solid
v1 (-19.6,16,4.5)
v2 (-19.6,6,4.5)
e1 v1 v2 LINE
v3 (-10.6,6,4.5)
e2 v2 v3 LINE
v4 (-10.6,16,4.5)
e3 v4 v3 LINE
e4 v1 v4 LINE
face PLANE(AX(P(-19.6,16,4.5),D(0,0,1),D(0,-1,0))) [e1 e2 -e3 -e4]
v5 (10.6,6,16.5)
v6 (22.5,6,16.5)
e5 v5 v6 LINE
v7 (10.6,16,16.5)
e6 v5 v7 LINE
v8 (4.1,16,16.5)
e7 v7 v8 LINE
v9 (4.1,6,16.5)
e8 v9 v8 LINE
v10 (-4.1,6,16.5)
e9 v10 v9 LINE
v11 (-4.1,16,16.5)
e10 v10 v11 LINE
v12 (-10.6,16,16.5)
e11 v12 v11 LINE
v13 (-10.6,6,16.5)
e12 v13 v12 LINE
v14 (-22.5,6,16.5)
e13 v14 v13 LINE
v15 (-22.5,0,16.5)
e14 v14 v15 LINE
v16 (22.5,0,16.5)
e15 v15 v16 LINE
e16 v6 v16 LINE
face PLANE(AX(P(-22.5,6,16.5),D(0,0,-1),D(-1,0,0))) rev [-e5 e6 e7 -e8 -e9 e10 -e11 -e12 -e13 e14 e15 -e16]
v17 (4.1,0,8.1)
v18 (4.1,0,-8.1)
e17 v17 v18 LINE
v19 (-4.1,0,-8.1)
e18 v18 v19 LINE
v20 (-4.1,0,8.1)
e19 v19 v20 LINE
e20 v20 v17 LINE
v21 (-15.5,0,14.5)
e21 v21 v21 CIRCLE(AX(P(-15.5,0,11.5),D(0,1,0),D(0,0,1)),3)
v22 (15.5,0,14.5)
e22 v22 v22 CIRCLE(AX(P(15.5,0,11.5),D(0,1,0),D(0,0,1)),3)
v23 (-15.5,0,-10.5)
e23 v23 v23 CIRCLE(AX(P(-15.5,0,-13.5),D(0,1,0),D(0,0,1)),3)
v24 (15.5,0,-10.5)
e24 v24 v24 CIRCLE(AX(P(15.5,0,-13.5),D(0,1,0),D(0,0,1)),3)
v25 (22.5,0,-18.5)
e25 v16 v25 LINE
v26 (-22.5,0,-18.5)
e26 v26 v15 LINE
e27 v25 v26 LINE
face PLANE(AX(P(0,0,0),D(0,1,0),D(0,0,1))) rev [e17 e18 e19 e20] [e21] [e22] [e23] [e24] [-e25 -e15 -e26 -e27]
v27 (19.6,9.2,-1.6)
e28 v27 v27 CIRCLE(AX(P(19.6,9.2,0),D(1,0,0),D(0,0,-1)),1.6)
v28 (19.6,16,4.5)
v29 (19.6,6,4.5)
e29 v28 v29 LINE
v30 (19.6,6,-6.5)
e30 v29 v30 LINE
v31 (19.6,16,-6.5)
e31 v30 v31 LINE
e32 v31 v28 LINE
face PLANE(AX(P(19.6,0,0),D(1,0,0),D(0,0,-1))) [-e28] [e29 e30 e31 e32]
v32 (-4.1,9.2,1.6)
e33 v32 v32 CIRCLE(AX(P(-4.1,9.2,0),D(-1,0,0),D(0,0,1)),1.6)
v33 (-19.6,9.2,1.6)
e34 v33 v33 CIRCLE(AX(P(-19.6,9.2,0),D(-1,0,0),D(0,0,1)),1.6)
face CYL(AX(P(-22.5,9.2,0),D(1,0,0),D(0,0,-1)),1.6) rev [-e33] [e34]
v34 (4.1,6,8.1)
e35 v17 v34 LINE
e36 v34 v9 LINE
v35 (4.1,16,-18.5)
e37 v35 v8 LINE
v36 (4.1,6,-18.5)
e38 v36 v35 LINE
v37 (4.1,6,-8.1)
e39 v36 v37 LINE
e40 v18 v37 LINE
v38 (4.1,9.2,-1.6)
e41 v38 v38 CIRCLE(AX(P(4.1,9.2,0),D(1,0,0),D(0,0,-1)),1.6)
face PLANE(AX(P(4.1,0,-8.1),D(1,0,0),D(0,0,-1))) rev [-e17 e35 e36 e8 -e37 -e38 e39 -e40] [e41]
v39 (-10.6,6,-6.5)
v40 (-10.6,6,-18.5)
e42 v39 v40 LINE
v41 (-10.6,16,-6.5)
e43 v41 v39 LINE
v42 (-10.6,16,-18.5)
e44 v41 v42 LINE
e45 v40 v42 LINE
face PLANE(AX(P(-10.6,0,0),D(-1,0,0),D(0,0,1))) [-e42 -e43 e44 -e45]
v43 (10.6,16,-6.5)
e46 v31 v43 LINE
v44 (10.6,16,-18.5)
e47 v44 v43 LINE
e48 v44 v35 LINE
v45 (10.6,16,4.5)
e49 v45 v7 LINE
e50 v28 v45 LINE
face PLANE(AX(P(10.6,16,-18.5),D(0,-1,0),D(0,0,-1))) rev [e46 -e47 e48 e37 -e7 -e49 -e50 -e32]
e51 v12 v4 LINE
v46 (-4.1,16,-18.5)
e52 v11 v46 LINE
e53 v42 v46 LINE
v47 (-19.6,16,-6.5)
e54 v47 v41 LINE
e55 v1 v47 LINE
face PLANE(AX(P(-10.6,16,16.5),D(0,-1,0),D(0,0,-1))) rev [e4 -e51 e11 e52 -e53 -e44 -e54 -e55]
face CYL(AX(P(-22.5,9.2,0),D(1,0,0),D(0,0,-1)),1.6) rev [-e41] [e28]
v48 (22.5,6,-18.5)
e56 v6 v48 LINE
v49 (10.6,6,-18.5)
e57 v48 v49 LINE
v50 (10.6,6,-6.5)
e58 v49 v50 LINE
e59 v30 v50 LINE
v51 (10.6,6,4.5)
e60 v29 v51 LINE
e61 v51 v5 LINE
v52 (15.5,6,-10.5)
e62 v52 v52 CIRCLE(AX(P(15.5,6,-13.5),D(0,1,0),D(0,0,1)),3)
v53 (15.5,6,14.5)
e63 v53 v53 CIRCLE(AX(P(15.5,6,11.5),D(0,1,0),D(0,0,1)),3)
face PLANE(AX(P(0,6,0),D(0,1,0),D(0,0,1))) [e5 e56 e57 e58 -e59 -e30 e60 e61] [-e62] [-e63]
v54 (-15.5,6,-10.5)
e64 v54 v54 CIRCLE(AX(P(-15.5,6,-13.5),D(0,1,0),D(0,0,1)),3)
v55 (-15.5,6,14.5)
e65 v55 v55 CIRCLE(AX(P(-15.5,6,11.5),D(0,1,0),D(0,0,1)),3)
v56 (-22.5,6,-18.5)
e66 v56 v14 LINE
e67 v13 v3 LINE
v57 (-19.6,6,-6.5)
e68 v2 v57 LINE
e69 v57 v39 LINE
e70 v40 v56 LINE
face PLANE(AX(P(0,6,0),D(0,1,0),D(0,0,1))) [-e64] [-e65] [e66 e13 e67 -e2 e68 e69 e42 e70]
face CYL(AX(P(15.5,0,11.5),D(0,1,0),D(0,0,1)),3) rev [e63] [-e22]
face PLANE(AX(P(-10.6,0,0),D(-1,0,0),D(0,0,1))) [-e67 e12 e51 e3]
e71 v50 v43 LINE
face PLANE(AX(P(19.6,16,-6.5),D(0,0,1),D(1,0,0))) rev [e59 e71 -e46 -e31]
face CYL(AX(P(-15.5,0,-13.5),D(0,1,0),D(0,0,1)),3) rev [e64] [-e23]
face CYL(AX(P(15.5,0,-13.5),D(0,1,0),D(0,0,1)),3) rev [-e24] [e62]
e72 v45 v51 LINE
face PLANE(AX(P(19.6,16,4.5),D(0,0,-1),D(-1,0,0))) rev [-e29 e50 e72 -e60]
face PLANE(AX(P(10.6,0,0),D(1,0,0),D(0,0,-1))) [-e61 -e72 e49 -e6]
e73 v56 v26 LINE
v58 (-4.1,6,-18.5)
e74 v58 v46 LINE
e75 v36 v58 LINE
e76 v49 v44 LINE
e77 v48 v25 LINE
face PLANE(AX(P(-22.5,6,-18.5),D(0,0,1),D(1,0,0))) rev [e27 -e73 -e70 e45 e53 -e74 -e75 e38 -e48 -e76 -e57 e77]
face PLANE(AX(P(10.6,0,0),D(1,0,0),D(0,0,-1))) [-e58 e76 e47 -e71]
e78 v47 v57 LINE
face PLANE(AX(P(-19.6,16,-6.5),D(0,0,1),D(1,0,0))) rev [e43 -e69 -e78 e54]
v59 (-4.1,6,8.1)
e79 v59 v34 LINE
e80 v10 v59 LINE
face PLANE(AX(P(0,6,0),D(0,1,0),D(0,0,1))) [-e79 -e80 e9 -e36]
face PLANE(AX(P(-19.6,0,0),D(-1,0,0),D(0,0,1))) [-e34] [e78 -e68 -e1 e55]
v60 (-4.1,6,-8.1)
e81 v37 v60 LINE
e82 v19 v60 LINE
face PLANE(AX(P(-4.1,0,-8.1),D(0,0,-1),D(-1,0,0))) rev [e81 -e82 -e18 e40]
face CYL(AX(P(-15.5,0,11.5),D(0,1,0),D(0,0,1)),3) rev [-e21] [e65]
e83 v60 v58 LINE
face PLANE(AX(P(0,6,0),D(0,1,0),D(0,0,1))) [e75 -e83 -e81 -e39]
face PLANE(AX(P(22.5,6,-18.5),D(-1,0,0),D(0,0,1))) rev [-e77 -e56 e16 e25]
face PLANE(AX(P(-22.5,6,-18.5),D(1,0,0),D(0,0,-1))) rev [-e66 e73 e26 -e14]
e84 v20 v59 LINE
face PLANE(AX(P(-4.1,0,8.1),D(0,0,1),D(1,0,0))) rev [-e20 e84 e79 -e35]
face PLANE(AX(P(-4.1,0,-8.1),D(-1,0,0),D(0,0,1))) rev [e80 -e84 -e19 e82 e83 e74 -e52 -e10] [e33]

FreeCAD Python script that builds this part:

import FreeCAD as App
import Part
import Sketcher

V = App.Vector


def add_polygon(sketch, points):
    """Adds a closed chain of lines whose ends are joined by coincident constraints."""
    first, n = sketch.GeometryCount, len(points)
    for a, b in zip(points, points[1:] + points[:1]):
        sketch.addGeometry(Part.LineSegment(App.Vector(*a, 0), App.Vector(*b, 0)), False)
    for i in range(n):
        sketch.addConstraint(Sketcher.Constraint("Coincident", first + i, 2, first + (i + 1) % n, 1))

doc = App.newDocument("Part")
body = doc.addObject("PartDesign::Body", "Body")

# Sketch on XZ plane
sketch1 = doc.addObject("Sketcher::SketchObject", "Sketch")
body.addObject(sketch1)
sketch1.AttachmentSupport = (doc.XZ_Plane, [""])
sketch1.MapMode = "FlatFace"
add_polygon(sketch1, [(-22, -18), (-22, 16), (22, 16), (22, -18)])  # lines 0-3
sketch1.addConstraint([
    Sketcher.Constraint("Vertical", 0),
    Sketcher.Constraint("Horizontal", 1),
    Sketcher.Constraint("Vertical", 2),
    Sketcher.Constraint("Horizontal", 3),
    Sketcher.Constraint("DistanceX", 1, 1, 1, 2, 45.0),
    Sketcher.Constraint("DistanceY", 0, 1, 0, 2, 35.0),
    Sketcher.Constraint("DistanceX", 0, 2, -1, 1, 22.5),
    Sketcher.Constraint("DistanceY", -1, 1, 0, 2, 16.5),
])
pad1 = doc.addObject("PartDesign::Pad", "Pad")
body.addObject(pad1)
pad1.Profile = sketch1
pad1.Length = 6
pad1.Reversed = True

# Sketch on XZ plane
sketch2 = doc.addObject("Sketcher::SketchObject", "Sketch001")
body.addObject(sketch2)
sketch2.AttachmentSupport = (doc.XZ_Plane, [""])
sketch2.MapMode = "FlatFace"
sketch2.AttachmentOffset = App.Placement(V(0, 0, -6), App.Rotation())
sketch2.addGeometry([
    Part.Circle(V(-15.5, -13.5, 0), V(0, 0, 1), 3),
    Part.Circle(V(-15.5, 11.5, 0), V(0, 0, 1), 3),
    Part.Circle(V(15.5, 11.5, 0), V(0, 0, 1), 3),
    Part.Circle(V(15.5, -13.5, 0), V(0, 0, 1), 3),
], False)
sketch2.addConstraint([
    Sketcher.Constraint("Equal", 0, 1),
    Sketcher.Constraint("Equal", 1, 2),
    Sketcher.Constraint("Equal", 2, 3),
    Sketcher.Constraint("Symmetric", 1, 3, 2, 3, -2),
    Sketcher.Constraint("Symmetric", 0, 3, 3, 3, -2),
    Sketcher.Constraint("Vertical", 0, 3, 1, 3),
    Sketcher.Constraint("Diameter", 0, 6.0),
    Sketcher.Constraint("DistanceY", 0, 3, 1, 3, 25.0),
    Sketcher.Constraint("DistanceX", 1, 3, 2, 3, 31.0),
    Sketcher.Constraint("DistanceY", 0, 3, -1, 1, 13.5),
])
pocket1 = doc.addObject("PartDesign::Pocket", "Pocket")
body.addObject(pocket1)
pocket1.Profile = sketch2
pocket1.Type = "ThroughAll"
pocket1.Reversed = True

# Sketch on XZ plane
sketch3 = doc.addObject("Sketcher::SketchObject", "Sketch002")
body.addObject(sketch3)
sketch3.AttachmentSupport = (doc.XZ_Plane, [""])
sketch3.MapMode = "FlatFace"
sketch3.AttachmentOffset = App.Placement(V(0, 0, -6), App.Rotation())
add_polygon(sketch3, [(-4, -8), (-4, 8), (4, 8), (4, -8)])  # lines 0-3
sketch3.addConstraint([
    Sketcher.Constraint("Vertical", 0),
    Sketcher.Constraint("Horizontal", 1),
    Sketcher.Constraint("Vertical", 2),
    Sketcher.Constraint("Horizontal", 3),
    Sketcher.Constraint("Symmetric", 0, 2, 2, 2, -1, 1),
    Sketcher.Constraint("DistanceX", 1, 1, 1, 2, 8.2),
    Sketcher.Constraint("DistanceY", 0, 1, 0, 2, 16.2),
])
pocket2 = doc.addObject("PartDesign::Pocket", "Pocket001")
body.addObject(pocket2)
pocket2.Profile = sketch3
pocket2.Type = "ThroughAll"
pocket2.Reversed = True

# Sketch on YZ plane
sketch4 = doc.addObject("Sketcher::SketchObject", "Sketch003")
body.addObject(sketch4)
sketch4.AttachmentSupport = (doc.YZ_Plane, [""])
sketch4.MapMode = "FlatFace"
sketch4.AttachmentOffset = App.Placement(V(0, 0, -4.1), App.Rotation())
add_polygon(sketch4, [(16, 16), (6, 16), (6, -18), (16, -18)])  # lines 0-3
sketch4.addConstraint([
    Sketcher.Constraint("Horizontal", 0),
    Sketcher.Constraint("Vertical", 1),
    Sketcher.Constraint("Horizontal", 2),
    Sketcher.Constraint("Vertical", 3),
    Sketcher.Constraint("DistanceX", 0, 2, 0, 1, 10.0),
    Sketcher.Constraint("DistanceY", 1, 2, 1, 1, 35.0),
    Sketcher.Constraint("DistanceX", -1, 1, 0, 2, 6.0),
    Sketcher.Constraint("DistanceY", -1, 1, 0, 2, 16.5),
])
pad2 = doc.addObject("PartDesign::Pad", "Pad001")
body.addObject(pad2)
pad2.Profile = sketch4
pad2.Length = 6.5
pad2.Reversed = True

# Sketch on YZ plane
sketch5 = doc.addObject("Sketcher::SketchObject", "Sketch004")
body.addObject(sketch5)
sketch5.AttachmentSupport = (doc.YZ_Plane, [""])
sketch5.MapMode = "FlatFace"
sketch5.AttachmentOffset = App.Placement(V(0, 0, 4.1), App.Rotation())
add_polygon(sketch5, [(16, -18), (6, -18), (6, 16), (16, 16)])  # lines 0-3
sketch5.addConstraint([
    Sketcher.Constraint("Horizontal", 0),
    Sketcher.Constraint("Vertical", 1),
    Sketcher.Constraint("Horizontal", 2),
    Sketcher.Constraint("Vertical", 3),
    Sketcher.Constraint("DistanceX", 0, 2, 0, 1, 10.0),
    Sketcher.Constraint("DistanceY", 1, 1, 1, 2, 35.0),
    Sketcher.Constraint("DistanceX", -1, 1, 0, 2, 6.0),
    Sketcher.Constraint("DistanceY", 0, 2, -1, 1, 18.5),
])
pad3 = doc.addObject("PartDesign::Pad", "Pad002")
body.addObject(pad3)
pad3.Profile = sketch5
pad3.Length = 6.5

# Sketch on YZ plane
sketch6 = doc.addObject("Sketcher::SketchObject", "Sketch005")
body.addObject(sketch6)
sketch6.AttachmentSupport = (doc.YZ_Plane, [""])
sketch6.MapMode = "FlatFace"
sketch6.AttachmentOffset = App.Placement(V(0, 0, 10.6), App.Rotation())
add_polygon(sketch6, [(16, 4), (6, 4), (6, -6), (16, -6)])  # lines 0-3
sketch6.addConstraint([
    Sketcher.Constraint("Horizontal", 0),
    Sketcher.Constraint("Vertical", 1),
    Sketcher.Constraint("Horizontal", 2),
    Sketcher.Constraint("Vertical", 3),
    Sketcher.Constraint("DistanceX", 0, 2, 0, 1, 10.0),
    Sketcher.Constraint("DistanceY", 1, 2, 1, 1, 11.0),
    Sketcher.Constraint("DistanceX", -1, 1, 0, 2, 6.0),
    Sketcher.Constraint("DistanceY", -1, 1, 0, 2, 4.5),
])
pad4 = doc.addObject("PartDesign::Pad", "Pad003")
body.addObject(pad4)
pad4.Profile = sketch6
pad4.Length = 9

# Sketch on YZ plane
sketch7 = doc.addObject("Sketcher::SketchObject", "Sketch006")
body.addObject(sketch7)
sketch7.AttachmentSupport = (doc.YZ_Plane, [""])
sketch7.MapMode = "FlatFace"
sketch7.AttachmentOffset = App.Placement(V(0, 0, -10.6), App.Rotation())
add_polygon(sketch7, [(16, 4), (6, 4), (6, -6), (16, -6)])  # lines 0-3
sketch7.addConstraint([
    Sketcher.Constraint("Horizontal", 0),
    Sketcher.Constraint("Vertical", 1),
    Sketcher.Constraint("Horizontal", 2),
    Sketcher.Constraint("Vertical", 3),
    Sketcher.Constraint("DistanceX", 0, 2, 0, 1, 10.0),
    Sketcher.Constraint("DistanceY", 1, 2, 1, 1, 11.0),
    Sketcher.Constraint("DistanceX", -1, 1, 0, 2, 6.0),
    Sketcher.Constraint("DistanceY", -1, 1, 0, 2, 4.5),
])
pad5 = doc.addObject("PartDesign::Pad", "Pad004")
body.addObject(pad5)
pad5.Profile = sketch7
pad5.Length = 9
pad5.Reversed = True

# Sketch on YZ plane
sketch8 = doc.addObject("Sketcher::SketchObject", "Sketch007")
body.addObject(sketch8)
sketch8.AttachmentSupport = (doc.YZ_Plane, [""])
sketch8.MapMode = "FlatFace"
sketch8.AttachmentOffset = App.Placement(V(0, 0, 10.6), App.Rotation())
sketch8.addGeometry(Part.Circle(V(9.2, 0, 0), V(0, 0, 1), 1.6), False)
sketch8.addConstraint([
    Sketcher.Constraint("PointOnObject", 0, 3, -1),
    Sketcher.Constraint("Diameter", 0, 3.2),
    Sketcher.Constraint("DistanceX", -1, 1, 0, 3, 9.2),
])
pocket3 = doc.addObject("PartDesign::Pocket", "Pocket002")
body.addObject(pocket3)
pocket3.Profile = sketch8
pocket3.Type = "ThroughAll"
pocket3.Midplane = True

doc.recompute()
